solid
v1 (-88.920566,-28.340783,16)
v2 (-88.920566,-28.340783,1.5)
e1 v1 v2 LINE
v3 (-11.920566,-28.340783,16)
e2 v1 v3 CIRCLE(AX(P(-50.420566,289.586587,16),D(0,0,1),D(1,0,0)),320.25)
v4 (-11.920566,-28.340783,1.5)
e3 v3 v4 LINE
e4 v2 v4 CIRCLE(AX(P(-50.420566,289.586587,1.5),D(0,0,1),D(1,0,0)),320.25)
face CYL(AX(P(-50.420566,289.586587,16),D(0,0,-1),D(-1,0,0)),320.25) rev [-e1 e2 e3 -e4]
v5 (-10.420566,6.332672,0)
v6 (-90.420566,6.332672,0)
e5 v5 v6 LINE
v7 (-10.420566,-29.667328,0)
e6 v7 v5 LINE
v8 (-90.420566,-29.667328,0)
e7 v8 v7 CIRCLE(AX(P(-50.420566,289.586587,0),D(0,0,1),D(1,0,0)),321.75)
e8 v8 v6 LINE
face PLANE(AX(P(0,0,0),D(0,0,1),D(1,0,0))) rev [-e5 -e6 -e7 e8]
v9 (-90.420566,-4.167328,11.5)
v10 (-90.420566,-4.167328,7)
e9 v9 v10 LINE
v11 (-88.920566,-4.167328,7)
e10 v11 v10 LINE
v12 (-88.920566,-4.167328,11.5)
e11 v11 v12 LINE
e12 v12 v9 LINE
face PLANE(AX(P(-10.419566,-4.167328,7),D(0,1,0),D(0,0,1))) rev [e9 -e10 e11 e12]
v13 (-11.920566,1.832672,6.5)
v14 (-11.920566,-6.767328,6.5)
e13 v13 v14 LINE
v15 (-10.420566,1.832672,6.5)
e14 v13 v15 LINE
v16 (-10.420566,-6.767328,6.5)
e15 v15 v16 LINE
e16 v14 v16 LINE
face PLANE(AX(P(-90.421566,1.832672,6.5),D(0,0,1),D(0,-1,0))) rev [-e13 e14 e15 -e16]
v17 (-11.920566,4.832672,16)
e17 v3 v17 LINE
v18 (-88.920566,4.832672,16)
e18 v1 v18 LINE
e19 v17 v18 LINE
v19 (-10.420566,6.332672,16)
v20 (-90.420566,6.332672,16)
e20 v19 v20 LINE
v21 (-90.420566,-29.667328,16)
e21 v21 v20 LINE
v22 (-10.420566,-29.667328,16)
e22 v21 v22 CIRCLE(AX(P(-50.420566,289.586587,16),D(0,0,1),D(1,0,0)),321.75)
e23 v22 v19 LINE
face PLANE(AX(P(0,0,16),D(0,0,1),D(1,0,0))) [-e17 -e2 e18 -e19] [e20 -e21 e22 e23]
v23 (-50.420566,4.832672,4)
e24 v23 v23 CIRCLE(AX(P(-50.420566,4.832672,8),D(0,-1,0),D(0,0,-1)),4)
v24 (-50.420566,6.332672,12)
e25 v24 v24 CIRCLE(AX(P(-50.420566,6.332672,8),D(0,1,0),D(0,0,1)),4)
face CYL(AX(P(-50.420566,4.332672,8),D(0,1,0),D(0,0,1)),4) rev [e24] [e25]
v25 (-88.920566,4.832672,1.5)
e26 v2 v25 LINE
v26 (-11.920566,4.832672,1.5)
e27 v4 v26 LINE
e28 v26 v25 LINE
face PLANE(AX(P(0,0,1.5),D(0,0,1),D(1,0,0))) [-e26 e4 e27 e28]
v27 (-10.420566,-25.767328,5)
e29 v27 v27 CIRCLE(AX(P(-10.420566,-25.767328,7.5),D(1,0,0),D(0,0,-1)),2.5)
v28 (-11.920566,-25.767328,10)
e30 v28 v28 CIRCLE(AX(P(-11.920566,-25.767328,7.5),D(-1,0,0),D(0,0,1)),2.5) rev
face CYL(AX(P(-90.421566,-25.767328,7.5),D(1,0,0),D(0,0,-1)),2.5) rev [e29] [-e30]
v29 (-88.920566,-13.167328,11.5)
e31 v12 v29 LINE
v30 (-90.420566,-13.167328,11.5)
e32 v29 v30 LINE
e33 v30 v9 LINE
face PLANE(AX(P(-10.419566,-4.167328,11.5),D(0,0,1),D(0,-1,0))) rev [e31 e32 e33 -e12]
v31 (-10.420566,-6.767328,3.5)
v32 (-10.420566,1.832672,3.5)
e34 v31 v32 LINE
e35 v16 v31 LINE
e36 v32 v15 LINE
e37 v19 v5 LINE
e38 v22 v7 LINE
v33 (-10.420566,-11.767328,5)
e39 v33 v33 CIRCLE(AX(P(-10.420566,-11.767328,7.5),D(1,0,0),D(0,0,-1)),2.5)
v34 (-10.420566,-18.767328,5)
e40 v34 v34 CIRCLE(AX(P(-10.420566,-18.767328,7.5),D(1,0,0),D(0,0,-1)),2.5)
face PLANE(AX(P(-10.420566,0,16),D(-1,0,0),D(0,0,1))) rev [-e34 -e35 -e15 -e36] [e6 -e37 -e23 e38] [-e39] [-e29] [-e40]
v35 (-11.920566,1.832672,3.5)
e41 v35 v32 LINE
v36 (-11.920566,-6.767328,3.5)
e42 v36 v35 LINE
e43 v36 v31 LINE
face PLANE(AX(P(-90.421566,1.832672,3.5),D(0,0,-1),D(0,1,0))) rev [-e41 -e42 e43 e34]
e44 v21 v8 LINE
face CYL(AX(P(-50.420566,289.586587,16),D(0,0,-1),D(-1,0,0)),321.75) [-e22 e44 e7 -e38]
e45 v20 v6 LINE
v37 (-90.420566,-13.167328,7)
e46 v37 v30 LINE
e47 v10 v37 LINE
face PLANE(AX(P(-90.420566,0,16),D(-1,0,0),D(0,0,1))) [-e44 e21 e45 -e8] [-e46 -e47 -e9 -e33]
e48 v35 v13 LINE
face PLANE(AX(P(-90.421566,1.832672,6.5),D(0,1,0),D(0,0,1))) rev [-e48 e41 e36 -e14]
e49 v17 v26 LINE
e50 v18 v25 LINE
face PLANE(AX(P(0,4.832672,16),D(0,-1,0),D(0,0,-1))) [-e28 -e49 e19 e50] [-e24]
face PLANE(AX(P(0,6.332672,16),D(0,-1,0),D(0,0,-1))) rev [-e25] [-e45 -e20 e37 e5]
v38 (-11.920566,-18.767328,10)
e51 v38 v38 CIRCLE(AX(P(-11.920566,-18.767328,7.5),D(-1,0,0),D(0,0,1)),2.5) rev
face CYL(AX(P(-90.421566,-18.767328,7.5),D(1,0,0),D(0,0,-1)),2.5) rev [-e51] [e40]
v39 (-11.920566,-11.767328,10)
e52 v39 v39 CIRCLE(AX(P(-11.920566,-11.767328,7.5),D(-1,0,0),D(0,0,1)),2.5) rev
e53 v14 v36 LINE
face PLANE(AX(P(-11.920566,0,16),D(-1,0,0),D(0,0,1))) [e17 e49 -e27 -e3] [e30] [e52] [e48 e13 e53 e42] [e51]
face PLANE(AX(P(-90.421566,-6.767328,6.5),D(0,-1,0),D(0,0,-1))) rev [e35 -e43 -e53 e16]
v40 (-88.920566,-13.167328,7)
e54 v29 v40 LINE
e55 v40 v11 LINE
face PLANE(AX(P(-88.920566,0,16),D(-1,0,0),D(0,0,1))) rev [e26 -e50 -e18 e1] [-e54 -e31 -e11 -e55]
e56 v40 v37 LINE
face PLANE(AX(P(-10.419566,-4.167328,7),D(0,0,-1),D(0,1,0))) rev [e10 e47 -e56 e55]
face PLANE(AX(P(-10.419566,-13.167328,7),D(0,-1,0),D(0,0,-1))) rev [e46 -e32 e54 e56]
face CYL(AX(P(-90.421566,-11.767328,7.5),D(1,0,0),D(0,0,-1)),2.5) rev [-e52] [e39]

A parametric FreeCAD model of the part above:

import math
import FreeCAD as App
import Part
import Sketcher
from FreeCAD import Vector
Q = App.Units.Quantity


def faces_at(feature, points):
    """Names of the faces that lie closest to the given points."""
    faces = feature.Shape.Faces
    near = lambda p: min(range(len(faces)), key=lambda i: faces[i].distToShape(Part.Vertex(*p))[0])
    return sorted({f"Face{near(p) + 1}" for p in points})


def add_polygon(sketch, points):
    """Adds a closed chain of lines whose ends are joined by coincident constraints."""
    first, n = sketch.GeometryCount, len(points)
    for a, b in zip(points, points[1:] + points[:1]):
        sketch.addGeometry(Part.LineSegment(App.Vector(*a, 0), App.Vector(*b, 0)), False)
    for i in range(n):
        sketch.addConstraint(Sketcher.Constraint("Coincident", first + i, 2, first + (i + 1) % n, 1))

doc = App.newDocument("Part")
body = doc.addObject("PartDesign::Body", "Body")

sketch1 = doc.addObject("Sketcher::SketchObject", "Sketch")
body.addObject(sketch1)
sketch1.AttachmentSupport = (doc.XY_Plane, [""])
sketch1.MapMode = "FlatFace"
sketch1.addGeometry([
    Part.LineSegment(Vector(-90, 6, 0), Vector(-90, -30, 0)),
    Part.ArcOfCircle(Part.Circle(Vector(-50, 290, 0), Vector(0, 0, 1), 322), math.radians(-97.14), math.radians(-82.86)),
    Part.LineSegment(Vector(-10, -30, 0), Vector(-10, 6, 0)),
    Part.LineSegment(Vector(-10, 6, 0), Vector(-90, 6, 0)),
], False)
sketch1.addConstraint([
    Sketcher.Constraint("Coincident", 0, 2, 1, 1),
    Sketcher.Constraint("Coincident", 1, 2, 2, 1),
    Sketcher.Constraint("Coincident", 2, 2, 3, 1),
    Sketcher.Constraint("Coincident", 3, 2, 0, 1),
    Sketcher.Constraint("Vertical", 0),
    Sketcher.Constraint("Vertical", 2),
    Sketcher.Constraint("Horizontal", 3),
    Sketcher.Constraint("Horizontal", 0, 2, 1, 2),
    Sketcher.Constraint("DistanceX", 3, 2, 3, 1, Q("80 mm")),
    Sketcher.Constraint("DistanceY", 0, 2, 0, 1, Q("36 mm")),
    Sketcher.Constraint("Radius", 1, Q("321.75 mm")),
    Sketcher.Constraint("DistanceY", 0, 2, -1, 1, Q("29.667328 mm")),
    Sketcher.Constraint("DistanceX", 1, 3, -1, 1, Q("50.420566 mm")),
])
pad1 = doc.addObject("PartDesign::Pad", "Pad")
body.addObject(pad1)
pad1.Profile = sketch1
pad1.Length = 16
doc.recompute()

thickness = doc.addObject("PartDesign::Thickness", "Thickness")
body.addObject(thickness)
thickness.Base = (pad1, faces_at(pad1, [(-50.421, -12.915, 16)]))
thickness.Value = 1.5
thickness.Reversed = True
thickness.Join = "Intersection"

sketch2 = doc.addObject("Sketcher::SketchObject", "Sketch001")
body.addObject(sketch2)
sketch2.AttachmentSupport = (doc.YZ_Plane, [""])
sketch2.MapMode = "FlatFace"
sketch2.AttachmentOffset = App.Placement(Vector(0, 0, -90.420566), App.Rotation())
add_polygon(sketch2, [(-4.2, 7), (-13.2, 7), (-13.2, 11.5), (-4.2, 11.5)])
sketch2.addConstraint([
    Sketcher.Constraint("Horizontal", 0),
    Sketcher.Constraint("Vertical", 1),
    Sketcher.Constraint("Horizontal", 2),
    Sketcher.Constraint("Vertical", 3),
    Sketcher.Constraint("DistanceX", 0, 2, 0, 1, Q("9 mm")),
    Sketcher.Constraint("DistanceY", 1, 1, 1, 2, Q("4.5 mm")),
    Sketcher.Constraint("DistanceY", -1, 1, 0, 2, Q("7 mm")),
    Sketcher.Constraint("DistanceX", 0, 2, -1, 1, Q("13.167328 mm")),
])
pocket1 = doc.addObject("PartDesign::Pocket", "Pocket")
body.addObject(pocket1)
pocket1.Profile = sketch2
pocket1.Type = "UpToFirst"
pocket1.Reversed = True

sketch3 = doc.addObject("Sketcher::SketchObject", "Sketch002")
body.addObject(sketch3)
sketch3.AttachmentSupport = (doc.YZ_Plane, [""])
sketch3.MapMode = "FlatFace"
sketch3.AttachmentOffset = App.Placement(Vector(0, 0, -10.420566), App.Rotation())
sketch3.addGeometry(Part.Circle(Vector(-11.8, 7.5, 0), Vector(0, 0, 1), 2.5), False)
sketch3.addConstraint([
    Sketcher.Constraint("Diameter", 0, Q("5 mm")),
    Sketcher.Constraint("DistanceY", -1, 1, 0, 3, Q("7.5 mm")),
    Sketcher.Constraint("DistanceX", 0, 3, -1, 1, Q("11.767328 mm")),
])
pocket2 = doc.addObject("PartDesign::Pocket", "Pocket001")
body.addObject(pocket2)
pocket2.Profile = sketch3
pocket2.Type = "UpToFirst"

sketch4 = doc.addObject("Sketcher::SketchObject", "Sketch003")
body.addObject(sketch4)
sketch4.AttachmentSupport = (doc.YZ_Plane, [""])
sketch4.MapMode = "FlatFace"
sketch4.AttachmentOffset = App.Placement(Vector(0, 0, -10.420566), App.Rotation())
sketch4.addGeometry(Part.Circle(Vector(-18.8, 7.5, 0), Vector(0, 0, 1), 2.5), False)
sketch4.addConstraint([
    Sketcher.Constraint("Diameter", 0, Q("5 mm")),
    Sketcher.Constraint("DistanceY", -1, 1, 0, 3, Q("7.5 mm")),
    Sketcher.Constraint("DistanceX", 0, 3, -1, 1, Q("18.767328 mm")),
])
pocket3 = doc.addObject("PartDesign::Pocket", "Pocket002")
body.addObject(pocket3)
pocket3.Profile = sketch4
pocket3.Type = "UpToFirst"

sketch5 = doc.addObject("Sketcher::SketchObject", "Sketch004")
body.addObject(sketch5)
sketch5.AttachmentSupport = (doc.YZ_Plane, [""])
sketch5.MapMode = "FlatFace"
sketch5.AttachmentOffset = App.Placement(Vector(0, 0, -10.420566), App.Rotation())
sketch5.addGeometry(Part.Circle(Vector(-25.8, 7.5, 0), Vector(0, 0, 1), 2.5), False)
sketch5.addConstraint([
    Sketcher.Constraint("Diameter", 0, Q("5 mm")),
    Sketcher.Constraint("DistanceY", -1, 1, 0, 3, Q("7.5 mm")),
    Sketcher.Constraint("DistanceX", 0, 3, -1, 1, Q("25.767328 mm")),
])
pocket4 = doc.addObject("PartDesign::Pocket", "Pocket003")
body.addObject(pocket4)
pocket4.Profile = sketch5
pocket4.Type = "UpToFirst"

sketch6 = doc.addObject("Sketcher::SketchObject", "Sketch005")
body.addObject(sketch6)
sketch6.AttachmentSupport = (doc.YZ_Plane, [""])
sketch6.MapMode = "FlatFace"
sketch6.AttachmentOffset = App.Placement(Vector(0, 0, -10.420566), App.Rotation())
add_polygon(sketch6, [(1.8, 6.5), (-6.8, 6.5), (-6.8, 3.5), (1.8, 3.5)])
sketch6.addConstraint([
    Sketcher.Constraint("Horizontal", 0),
    Sketcher.Constraint("Vertical", 1),
    Sketcher.Constraint("Horizontal", 2),
    Sketcher.Constraint("Vertical", 3),
    Sketcher.Constraint("DistanceY", 1, 2, 1, 1, Q("3 mm")),
    Sketcher.Constraint("DistanceX", 0, 2, 0, 1, Q("8.6 mm")),
    Sketcher.Constraint("DistanceY", -1, 1, 0, 2, Q("6.5 mm")),
    Sketcher.Constraint("DistanceX", 0, 2, -1, 1, Q("6.767328 mm")),
])
pocket5 = doc.addObject("PartDesign::Pocket", "Pocket004")
body.addObject(pocket5)
pocket5.Profile = sketch6
pocket5.Type = "UpToFirst"

sketch7 = doc.addObject("Sketcher::SketchObject", "Sketch006")
body.addObject(sketch7)
sketch7.AttachmentSupport = (doc.XZ_Plane, [""])
sketch7.MapMode = "FlatFace"
sketch7.AttachmentOffset = App.Placement(Vector(0, 0, -6.332672), App.Rotation())
sketch7.addGeometry(Part.Circle(Vector(-50.4, 8, 0), Vector(0, 0, 1), 4), False)
sketch7.addConstraint([
    Sketcher.Constraint("Diameter", 0, Q("8 mm")),
    Sketcher.Constraint("DistanceY", -1, 1, 0, 3, Q("8 mm")),
    Sketcher.Constraint("DistanceX", 0, 3, -1, 1, Q("50.420566 mm")),
])
pocket6 = doc.addObject("PartDesign::Pocket", "Pocket005")
body.addObject(pocket6)
pocket6.Profile = sketch7
pocket6.Length = 2
pocket6.Reversed = True

doc.recompute()
